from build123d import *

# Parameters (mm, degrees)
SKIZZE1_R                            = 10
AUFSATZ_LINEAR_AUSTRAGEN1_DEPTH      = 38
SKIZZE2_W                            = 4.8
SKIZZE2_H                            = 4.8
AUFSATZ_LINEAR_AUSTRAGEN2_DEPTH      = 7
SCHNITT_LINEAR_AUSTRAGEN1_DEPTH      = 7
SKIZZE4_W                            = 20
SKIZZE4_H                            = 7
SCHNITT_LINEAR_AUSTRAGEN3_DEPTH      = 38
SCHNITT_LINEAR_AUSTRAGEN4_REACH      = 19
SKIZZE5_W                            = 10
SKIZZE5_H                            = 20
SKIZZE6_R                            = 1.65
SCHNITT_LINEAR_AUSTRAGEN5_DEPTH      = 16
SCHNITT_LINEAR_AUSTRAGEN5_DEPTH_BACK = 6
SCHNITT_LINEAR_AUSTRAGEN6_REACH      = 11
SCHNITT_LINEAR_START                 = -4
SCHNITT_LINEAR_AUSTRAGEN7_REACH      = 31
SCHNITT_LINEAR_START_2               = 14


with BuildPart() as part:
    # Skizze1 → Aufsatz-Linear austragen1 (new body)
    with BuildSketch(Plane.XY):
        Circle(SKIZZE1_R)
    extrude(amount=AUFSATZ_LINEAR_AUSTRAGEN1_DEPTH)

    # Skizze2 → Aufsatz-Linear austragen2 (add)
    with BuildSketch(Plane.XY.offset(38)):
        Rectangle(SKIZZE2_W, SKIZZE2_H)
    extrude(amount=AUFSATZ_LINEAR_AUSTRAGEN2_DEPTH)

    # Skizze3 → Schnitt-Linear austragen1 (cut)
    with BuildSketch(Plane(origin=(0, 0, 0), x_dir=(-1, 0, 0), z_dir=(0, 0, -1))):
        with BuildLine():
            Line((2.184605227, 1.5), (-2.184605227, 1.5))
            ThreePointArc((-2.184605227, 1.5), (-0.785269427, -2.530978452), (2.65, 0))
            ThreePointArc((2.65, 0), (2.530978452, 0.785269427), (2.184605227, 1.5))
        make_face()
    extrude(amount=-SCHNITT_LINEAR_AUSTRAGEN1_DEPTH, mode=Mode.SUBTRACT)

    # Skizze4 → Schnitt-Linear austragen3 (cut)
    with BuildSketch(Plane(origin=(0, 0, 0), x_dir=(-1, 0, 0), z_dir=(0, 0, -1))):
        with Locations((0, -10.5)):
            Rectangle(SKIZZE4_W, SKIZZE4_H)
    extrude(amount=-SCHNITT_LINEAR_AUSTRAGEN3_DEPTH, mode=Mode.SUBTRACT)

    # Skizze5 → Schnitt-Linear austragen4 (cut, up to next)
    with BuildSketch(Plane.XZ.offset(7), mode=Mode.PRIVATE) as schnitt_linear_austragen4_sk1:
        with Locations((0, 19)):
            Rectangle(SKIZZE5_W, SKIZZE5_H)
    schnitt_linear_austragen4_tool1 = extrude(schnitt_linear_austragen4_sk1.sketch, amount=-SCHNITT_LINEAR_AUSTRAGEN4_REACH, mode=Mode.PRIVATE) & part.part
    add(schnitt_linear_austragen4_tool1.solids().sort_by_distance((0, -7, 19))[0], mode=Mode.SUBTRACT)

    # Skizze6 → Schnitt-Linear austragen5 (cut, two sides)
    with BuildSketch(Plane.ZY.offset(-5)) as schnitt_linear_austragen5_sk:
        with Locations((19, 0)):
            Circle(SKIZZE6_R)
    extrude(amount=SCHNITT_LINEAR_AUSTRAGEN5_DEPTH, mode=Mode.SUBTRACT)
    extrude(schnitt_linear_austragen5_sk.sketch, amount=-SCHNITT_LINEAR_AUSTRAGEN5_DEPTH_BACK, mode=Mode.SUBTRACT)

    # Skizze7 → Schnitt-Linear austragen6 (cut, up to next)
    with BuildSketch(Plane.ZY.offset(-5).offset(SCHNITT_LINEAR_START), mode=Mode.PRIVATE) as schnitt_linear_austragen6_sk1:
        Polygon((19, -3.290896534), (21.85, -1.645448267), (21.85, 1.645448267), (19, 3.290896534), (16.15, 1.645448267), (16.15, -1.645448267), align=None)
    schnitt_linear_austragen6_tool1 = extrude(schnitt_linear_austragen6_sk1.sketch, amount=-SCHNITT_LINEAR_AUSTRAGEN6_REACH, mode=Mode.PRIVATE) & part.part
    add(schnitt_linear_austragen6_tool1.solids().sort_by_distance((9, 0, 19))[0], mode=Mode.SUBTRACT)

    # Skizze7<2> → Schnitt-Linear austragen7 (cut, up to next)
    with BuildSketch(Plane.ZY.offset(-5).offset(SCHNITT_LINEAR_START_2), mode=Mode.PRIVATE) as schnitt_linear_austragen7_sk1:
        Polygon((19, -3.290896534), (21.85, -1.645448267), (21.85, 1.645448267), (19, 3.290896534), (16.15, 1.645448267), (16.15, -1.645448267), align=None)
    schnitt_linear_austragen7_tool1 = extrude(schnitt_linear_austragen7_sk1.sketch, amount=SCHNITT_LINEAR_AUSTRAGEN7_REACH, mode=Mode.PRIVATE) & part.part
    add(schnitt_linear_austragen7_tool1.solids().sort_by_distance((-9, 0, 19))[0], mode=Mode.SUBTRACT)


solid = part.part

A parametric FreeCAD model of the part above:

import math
import FreeCAD as App
import Part
import Sketcher
from FreeCAD import Vector
Q = App.Units.Quantity


def add_polygon(sketch, points):
    """Adds a closed chain of lines whose ends are joined by coincident constraints."""
    first, n = sketch.GeometryCount, len(points)
    for a, b in zip(points, points[1:] + points[:1]):
        sketch.addGeometry(Part.LineSegment(App.Vector(*a, 0), App.Vector(*b, 0)), False)
    for i in range(n):
        sketch.addConstraint(Sketcher.Constraint("Coincident", first + i, 2, first + (i + 1) % n, 1))

doc = App.newDocument("Part")
body = doc.addObject("PartDesign::Body", "Body")

# Sketch on XY plane
sketch1 = body.newObject("Sketcher::SketchObject", "Sketch")
sketch1.AttachmentSupport = (doc.getObject("XY_Plane"), [""])
sketch1.MapMode = "FlatFace"
sketch1.addGeometry(Part.Circle(Vector(0, 0, 0), Vector(0, 0, 1), 10), False)
sketch1.addConstraint(Sketcher.Constraint("Coincident", 0, 3, -1, 1))
sketch1.addConstraint(Sketcher.Constraint("Diameter", 0, 20.0))
pad1 = body.newObject("PartDesign::Pad", "Pad")
pad1.Profile = sketch1
pad1.Length = 38

# Sketch on XY plane
sketch2 = body.newObject("Sketcher::SketchObject", "Sketch001")
sketch2.AttachmentSupport = (doc.getObject("XY_Plane"), [""])
sketch2.MapMode = "FlatFace"
sketch2.AttachmentOffset = App.Placement(Vector(0, 0, 38), App.Rotation())
add_polygon(sketch2, [(-2.4, 2.4), (-2.4, -2.4), (2.4, -2.4), (2.4, 2.4)])  # lines 0-3
sketch2.addConstraint(Sketcher.Constraint("Vertical", 0))
sketch2.addConstraint(Sketcher.Constraint("Horizontal", 1))
sketch2.addConstraint(Sketcher.Constraint("Vertical", 2))
sketch2.addConstraint(Sketcher.Constraint("Horizontal", 3))
sketch2.addConstraint(Sketcher.Constraint("Symmetric", 0, 2, 2, 2, -1, 1))
sketch2.addConstraint(Sketcher.Constraint("Equal", 3, 0))
sketch2.addConstraint(Sketcher.Constraint("DistanceX", 1, 1, 1, 2, 4.8))
pad2 = body.newObject("PartDesign::Pad", "Pad001")
pad2.Profile = sketch2
pad2.Length = 7

# Sketch on XY plane
sketch3 = body.newObject("Sketcher::SketchObject", "Sketch002")
sketch3.AttachmentSupport = (doc.getObject("XY_Plane"), [""])
sketch3.MapMode = "FlatFace"
sketch3.addGeometry(Part.LineSegment(Vector(-2.184605, 1.5, 0), Vector(2.184605, 1.5, 0)), False)
sketch3.addGeometry(Part.ArcOfCircle(Part.Circle(Vector(0, 0, 0), Vector(0, 0, 1), 2.65), math.radians(180), math.radians(394.474385)), False)
sketch3.addGeometry(Part.ArcOfCircle(Part.Circle(Vector(0, 0, 0), Vector(0, 0, 1), 2.65), math.radians(145.525615), math.radians(180)), False)
sketch3.addConstraint(Sketcher.Constraint("Coincident", 0, 2, 1, 2))
sketch3.addConstraint(Sketcher.Constraint("Tangent", 1, 1, 2, 2))
sketch3.addConstraint(Sketcher.Constraint("Coincident", 2, 1, 0, 1))
sketch3.addConstraint(Sketcher.Constraint("Horizontal", 0))
sketch3.addConstraint(Sketcher.Constraint("Coincident", 1, 3, -1, 1))
sketch3.addConstraint(Sketcher.Constraint("Equal", 1, 2))
sketch3.addConstraint(Sketcher.Constraint("PointOnObject", 1, 1, -1))
sketch3.addConstraint(Sketcher.Constraint("Radius", 1, 2.65))
sketch3.addConstraint(Sketcher.Constraint("DistanceY", -1, 1, 0, 2, 1.5))
pocket1 = body.newObject("PartDesign::Pocket", "Pocket")
pocket1.Profile = sketch3
pocket1.Length = 7
pocket1.Reversed = True

# Sketch on XY plane
sketch4 = body.newObject("Sketcher::SketchObject", "Sketch003")
sketch4.AttachmentSupport = (doc.getObject("XY_Plane"), [""])
sketch4.MapMode = "FlatFace"
add_polygon(sketch4, [(10, -7), (10, -14), (-10, -14), (-10, -7)])  # lines 0-3
sketch4.addConstraint(Sketcher.Constraint("Vertical", 0))
sketch4.addConstraint(Sketcher.Constraint("Horizontal", 1))
sketch4.addConstraint(Sketcher.Constraint("Vertical", 2))
sketch4.addConstraint(Sketcher.Constraint("Horizontal", 3))
sketch4.addConstraint(Sketcher.Constraint("DistanceX", 1, 2, 1, 1, 20.0))
sketch4.addConstraint(Sketcher.Constraint("DistanceY", 0, 2, 0, 1, 7.0))
sketch4.addConstraint(Sketcher.Constraint("DistanceX", -1, 1, 0, 2, 10.0))
sketch4.addConstraint(Sketcher.Constraint("DistanceY", 0, 2, -1, 1, 14.0))
pocket2 = body.newObject("PartDesign::Pocket", "Pocket001")
pocket2.Profile = sketch4
pocket2.Length = 38
pocket2.Reversed = True

# Sketch on XZ plane
sketch5 = body.newObject("Sketcher::SketchObject", "Sketch004")
sketch5.AttachmentSupport = (doc.getObject("XZ_Plane"), [""])
sketch5.MapMode = "FlatFace"
sketch5.AttachmentOffset = App.Placement(Vector(0, 0, 7), App.Rotation())
add_polygon(sketch5, [(-5, 29), (-5, 9), (5, 9), (5, 29)])  # lines 0-3
sketch5.addConstraint(Sketcher.Constraint("Vertical", 0))
sketch5.addConstraint(Sketcher.Constraint("Horizontal", 1))
sketch5.addConstraint(Sketcher.Constraint("Vertical", 2))
sketch5.addConstraint(Sketcher.Constraint("Horizontal", 3))
sketch5.addConstraint(Sketcher.Constraint("DistanceX", 1, 1, 1, 2, 10.0))
sketch5.addConstraint(Sketcher.Constraint("DistanceY", 0, 2, 0, 1, 20.0))
sketch5.addConstraint(Sketcher.Constraint("DistanceX", 0, 2, -1, 1, 5.0))
sketch5.addConstraint(Sketcher.Constraint("DistanceY", -1, 1, 0, 2, 9.0))
pocket3 = body.newObject("PartDesign::Pocket", "Pocket002")
pocket3.Profile = sketch5
pocket3.Type = "UpToFirst"

# Sketch on YZ plane
sketch6 = body.newObject("Sketcher::SketchObject", "Sketch005")
sketch6.AttachmentSupport = (doc.getObject("YZ_Plane"), [""])
sketch6.MapMode = "FlatFace"
sketch6.AttachmentOffset = App.Placement(Vector(0, 0, 5), App.Rotation())
sketch6.addGeometry(Part.Circle(Vector(0, 19, 0), Vector(0, 0, 1), 1.65), False)
sketch6.addConstraint(Sketcher.Constraint("PointOnObject", 0, 3, -2))
sketch6.addConstraint(Sketcher.Constraint("Diameter", 0, 3.3))
sketch6.addConstraint(Sketcher.Constraint("DistanceY", -1, 1, 0, 3, 19.0))
pocket4 = body.newObject("PartDesign::Pocket", "Pocket003")
pocket4.Profile = sketch6
pocket4.Type = "ThroughAll"
pocket4.Midplane = True

# Sketch on YZ plane
sketch7 = body.newObject("Sketcher::SketchObject", "Sketch006")
sketch7.AttachmentSupport = (doc.getObject("YZ_Plane"), [""])
sketch7.MapMode = "FlatFace"
sketch7.AttachmentOffset = App.Placement(Vector(0, 0, 9), App.Rotation())
add_polygon(sketch7, [(-3.290897, 19), (-1.645448, 21.85), (1.645448, 21.85), (3.290897, 19), (1.645448, 16.15), (-1.645448, 16.15)])  # lines 0-5
sketch7.addConstraint(Sketcher.Constraint("Horizontal", 1))
sketch7.addConstraint(Sketcher.Constraint("Horizontal", 4))
sketch7.addConstraint(Sketcher.Constraint("Symmetric", 2, 2, 5, 2, -2))
sketch7.addConstraint(Sketcher.Constraint("Parallel", 0, 3))
sketch7.addConstraint(Sketcher.Constraint("Parallel", 2, 5))
sketch7.addConstraint(Sketcher.Constraint("Vertical", 1, 2, 3, 2))
sketch7.addConstraint(Sketcher.Constraint("Vertical", 0, 2, 4, 2))
sketch7.addConstraint(Sketcher.Constraint("Angle", 0, Q("60 deg")))
sketch7.addConstraint(Sketcher.Constraint("DistanceY", -1, 1, 2, 2, 19.0))
sketch7.addConstraint(Sketcher.Constraint("DistanceY", 3, 2, 1, 2, 5.7))
sketch7.addConstraint(Sketcher.Constraint("DistanceX", 1, 1, 1, 2, 3.290897))
pocket5 = body.newObject("PartDesign::Pocket", "Pocket004")
pocket5.Profile = sketch7
pocket5.Length = 1
pocket5.Reversed = True

# Sketch on YZ plane
sketch8 = body.newObject("Sketcher::SketchObject", "Sketch007")
sketch8.AttachmentSupport = (doc.getObject("YZ_Plane"), [""])
sketch8.MapMode = "FlatFace"
sketch8.AttachmentOffset = App.Placement(Vector(0, 0, -9), App.Rotation())
add_polygon(sketch8, [(-3.290897, 19), (-1.645448, 21.85), (1.645448, 21.85), (3.290897, 19), (1.645448, 16.15), (-1.645448, 16.15)])  # lines 0-5
sketch8.addConstraint(Sketcher.Constraint("Horizontal", 1))
sketch8.addConstraint(Sketcher.Constraint("Horizontal", 4))
sketch8.addConstraint(Sketcher.Constraint("Symmetric", 2, 2, 5, 2, -2))
sketch8.addConstraint(Sketcher.Constraint("Parallel", 0, 3))
sketch8.addConstraint(Sketcher.Constraint("Parallel", 2, 5))
sketch8.addConstraint(Sketcher.Constraint("Vertical", 1, 2, 3, 2))
sketch8.addConstraint(Sketcher.Constraint("Vertical", 0, 2, 4, 2))
sketch8.addConstraint(Sketcher.Constraint("Angle", 0, Q("60 deg")))
sketch8.addConstraint(Sketcher.Constraint("DistanceY", -1, 1, 2, 2, 19.0))
sketch8.addConstraint(Sketcher.Constraint("DistanceY", 3, 2, 1, 2, 5.7))
sketch8.addConstraint(Sketcher.Constraint("DistanceX", 1, 1, 1, 2, 3.290897))
pocket6 = body.newObject("PartDesign::Pocket", "Pocket005")
pocket6.Profile = sketch8
pocket6.Length = 1

doc.recompute()
